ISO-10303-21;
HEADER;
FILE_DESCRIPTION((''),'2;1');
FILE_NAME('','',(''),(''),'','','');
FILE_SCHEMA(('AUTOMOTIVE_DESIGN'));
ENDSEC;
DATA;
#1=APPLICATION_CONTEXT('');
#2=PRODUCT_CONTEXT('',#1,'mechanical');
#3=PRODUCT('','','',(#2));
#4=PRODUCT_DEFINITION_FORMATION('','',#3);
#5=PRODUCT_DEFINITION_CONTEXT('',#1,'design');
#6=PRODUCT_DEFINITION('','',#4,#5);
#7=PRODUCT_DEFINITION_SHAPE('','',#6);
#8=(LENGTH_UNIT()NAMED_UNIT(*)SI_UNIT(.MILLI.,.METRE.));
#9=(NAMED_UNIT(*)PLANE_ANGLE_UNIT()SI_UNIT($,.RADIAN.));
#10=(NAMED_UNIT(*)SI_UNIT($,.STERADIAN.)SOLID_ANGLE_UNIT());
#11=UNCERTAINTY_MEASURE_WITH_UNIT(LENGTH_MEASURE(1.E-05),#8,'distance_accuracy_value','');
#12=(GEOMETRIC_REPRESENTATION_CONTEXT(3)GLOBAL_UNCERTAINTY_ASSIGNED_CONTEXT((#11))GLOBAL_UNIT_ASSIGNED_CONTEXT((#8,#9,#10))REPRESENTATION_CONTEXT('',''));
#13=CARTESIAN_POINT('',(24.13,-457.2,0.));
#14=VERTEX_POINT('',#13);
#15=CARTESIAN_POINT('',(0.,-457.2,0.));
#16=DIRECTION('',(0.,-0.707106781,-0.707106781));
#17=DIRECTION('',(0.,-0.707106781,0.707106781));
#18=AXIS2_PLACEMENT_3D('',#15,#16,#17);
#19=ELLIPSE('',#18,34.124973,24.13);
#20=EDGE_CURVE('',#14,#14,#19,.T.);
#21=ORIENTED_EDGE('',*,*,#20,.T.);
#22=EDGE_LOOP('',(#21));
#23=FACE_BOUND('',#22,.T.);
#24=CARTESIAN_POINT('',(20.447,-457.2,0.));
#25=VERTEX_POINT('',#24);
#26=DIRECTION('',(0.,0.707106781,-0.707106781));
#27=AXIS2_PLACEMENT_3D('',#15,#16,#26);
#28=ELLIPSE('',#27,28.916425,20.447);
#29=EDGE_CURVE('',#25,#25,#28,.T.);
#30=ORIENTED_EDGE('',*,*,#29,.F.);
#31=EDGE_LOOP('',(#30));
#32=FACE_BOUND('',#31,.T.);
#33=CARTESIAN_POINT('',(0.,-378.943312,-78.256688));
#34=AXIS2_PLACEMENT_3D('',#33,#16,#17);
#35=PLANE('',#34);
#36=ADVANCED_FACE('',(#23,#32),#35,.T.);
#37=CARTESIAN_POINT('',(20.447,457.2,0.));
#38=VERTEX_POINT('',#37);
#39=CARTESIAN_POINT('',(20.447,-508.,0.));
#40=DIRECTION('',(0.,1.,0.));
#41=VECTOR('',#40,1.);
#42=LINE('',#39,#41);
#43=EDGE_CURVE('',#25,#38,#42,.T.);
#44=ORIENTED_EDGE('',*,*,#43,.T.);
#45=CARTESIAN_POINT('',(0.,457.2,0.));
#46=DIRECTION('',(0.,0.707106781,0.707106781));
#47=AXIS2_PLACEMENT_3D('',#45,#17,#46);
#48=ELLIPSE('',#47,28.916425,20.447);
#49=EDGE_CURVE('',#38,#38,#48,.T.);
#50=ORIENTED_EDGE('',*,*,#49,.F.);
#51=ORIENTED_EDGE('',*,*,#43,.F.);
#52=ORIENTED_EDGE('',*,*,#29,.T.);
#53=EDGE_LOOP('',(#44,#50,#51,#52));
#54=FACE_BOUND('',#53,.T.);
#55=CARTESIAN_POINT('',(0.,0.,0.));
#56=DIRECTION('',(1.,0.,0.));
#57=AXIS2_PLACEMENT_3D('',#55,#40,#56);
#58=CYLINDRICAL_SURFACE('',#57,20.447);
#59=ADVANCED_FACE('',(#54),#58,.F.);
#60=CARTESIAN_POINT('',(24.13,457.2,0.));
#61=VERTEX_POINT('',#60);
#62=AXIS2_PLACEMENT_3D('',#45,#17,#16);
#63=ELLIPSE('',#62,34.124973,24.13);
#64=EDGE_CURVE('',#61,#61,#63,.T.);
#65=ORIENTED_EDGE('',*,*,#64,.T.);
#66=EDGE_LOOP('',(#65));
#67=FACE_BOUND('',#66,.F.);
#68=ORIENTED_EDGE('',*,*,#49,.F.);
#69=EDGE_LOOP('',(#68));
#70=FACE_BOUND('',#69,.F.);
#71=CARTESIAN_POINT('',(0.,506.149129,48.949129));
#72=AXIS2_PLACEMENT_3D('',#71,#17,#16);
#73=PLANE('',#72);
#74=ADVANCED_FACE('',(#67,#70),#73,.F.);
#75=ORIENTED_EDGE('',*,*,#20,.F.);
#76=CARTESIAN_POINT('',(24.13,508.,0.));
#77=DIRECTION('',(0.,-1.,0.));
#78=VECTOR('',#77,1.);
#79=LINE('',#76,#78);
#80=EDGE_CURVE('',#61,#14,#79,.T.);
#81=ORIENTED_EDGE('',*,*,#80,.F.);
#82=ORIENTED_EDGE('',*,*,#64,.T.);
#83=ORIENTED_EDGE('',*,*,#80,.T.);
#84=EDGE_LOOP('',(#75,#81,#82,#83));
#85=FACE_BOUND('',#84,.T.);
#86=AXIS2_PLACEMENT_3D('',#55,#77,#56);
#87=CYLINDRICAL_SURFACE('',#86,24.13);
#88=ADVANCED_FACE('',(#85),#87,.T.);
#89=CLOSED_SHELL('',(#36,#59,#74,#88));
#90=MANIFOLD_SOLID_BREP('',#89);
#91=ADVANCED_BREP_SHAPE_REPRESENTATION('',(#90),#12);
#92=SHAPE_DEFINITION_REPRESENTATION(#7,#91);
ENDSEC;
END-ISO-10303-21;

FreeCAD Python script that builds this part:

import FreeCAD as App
import Part
import Sketcher
from FreeCAD import Vector
Q = App.Units.Quantity

doc = App.newDocument("Part")
params = doc.addObject("Spreadsheet::Sheet", "Params")
for row, (alias, value) in enumerate([
    ("sketch1_diameter", "1.9 in"),
    ("sketch1_diameter2", "1.61 in"),
    ("pad1_length", "40 in"),
    ("pocket1_length", "6 in"),
], start=1):
    params.set(f"A{row}", alias)
    params.set(f"B{row}", "=" + value)
    params.setAlias(f"B{row}", alias)

body = doc.addObject("PartDesign::Body", "Body")

sketch1 = body.newObject("Sketcher::SketchObject", "Sketch")
sketch1.AttachmentSupport = (doc.getObject("XZ_Plane"), [""])
sketch1.MapMode = "FlatFace"
sketch1.addGeometry([
    Part.Circle(Vector(0, 0, 0), Vector(0, 0, 1), 24),
    Part.Circle(Vector(0, 0, 0), Vector(0, 0, 1), 20),
], False)
sketch1.addConstraint([
    Sketcher.Constraint("Coincident", 0, 3, -1, 1),
    Sketcher.Constraint("Coincident", 1, 3, -1, 1),
    Sketcher.Constraint("Diameter", 0, Q("1.9 in")),
    Sketcher.Constraint("Diameter", 1, Q("1.61 in")),
])
sketch1.setExpression("Constraints[2]", "Params.sketch1_diameter")
sketch1.setExpression("Constraints[3]", "Params.sketch1_diameter2")
pad1 = body.newObject("PartDesign::Pad", "Pad")
pad1.Profile = sketch1
pad1.setExpression("Length", "Params.pad1_length")
pad1.Midplane = True

sketch2 = body.newObject("Sketcher::SketchObject", "Sketch001")
sketch2.AttachmentSupport = (doc.getObject("YZ_Plane"), [""])
sketch2.MapMode = "FlatFace"
sketch2.addGeometry([
    Part.LineSegment(Vector(-379, -78, 0), Vector(-506, 49, 0)),
    Part.LineSegment(Vector(-506, 49, 0), Vector(-549, 26, 0)),
    Part.LineSegment(Vector(-549, 26, 0), Vector(-533, -70, 0)),
    Part.LineSegment(Vector(-533, -70, 0), Vector(-379, -78, 0)),
    Part.LineSegment(Vector(533, -70, 0), Vector(549, 26, 0)),
    Part.LineSegment(Vector(549, 26, 0), Vector(506, 49, 0)),
    Part.LineSegment(Vector(506, 49, 0), Vector(379, -78, 0)),
    Part.LineSegment(Vector(379, -78, 0), Vector(533, -70, 0)),
], False)
sketch2.addConstraint([
    Sketcher.Constraint("Coincident", 0, 2, 1, 1),
    Sketcher.Constraint("Coincident", 1, 2, 2, 1),
    Sketcher.Constraint("Coincident", 2, 2, 3, 1),
    Sketcher.Constraint("Coincident", 3, 2, 0, 1),
    Sketcher.Constraint("Coincident", 4, 2, 5, 1),
    Sketcher.Constraint("Coincident", 5, 2, 6, 1),
    Sketcher.Constraint("Coincident", 6, 2, 7, 1),
    Sketcher.Constraint("Coincident", 7, 2, 4, 1),
    Sketcher.Constraint("Symmetric", 1, 2, 4, 2, -2),
    Sketcher.Constraint("Symmetric", 0, 2, 5, 2, -2),
    Sketcher.Constraint("Symmetric", 3, 2, 6, 2, -2),
    Sketcher.Constraint("Symmetric", 2, 2, 7, 2, -2),
    Sketcher.Constraint("Perpendicular", 0, 6),
    Sketcher.Constraint("DistanceX", 2, 2, 4, 2, Q("42.5774999 in")),
    Sketcher.Constraint("Distance", 2, Q("97.208801 mm")),
    Sketcher.Constraint("DistanceX", 1, 2, -1, 1, Q("548.543801 mm")),
    Sketcher.Constraint("DistanceY", 3, 2, 1, 2, Q("103.777199 mm")),
    Sketcher.Constraint("Distance", 0, Q("179.896192 mm")),
    Sketcher.Constraint("DistanceX", 0, 2, -1, 1, Q("506.149129 mm")),
    Sketcher.Constraint("DistanceY", -1, 1, 0, 2, Q("48.949129 mm")),
])
pocket1 = body.newObject("PartDesign::Pocket", "Pocket")
pocket1.Profile = sketch2
pocket1.setExpression("Length", "Params.pocket1_length")
pocket1.Midplane = True

doc.recompute()
